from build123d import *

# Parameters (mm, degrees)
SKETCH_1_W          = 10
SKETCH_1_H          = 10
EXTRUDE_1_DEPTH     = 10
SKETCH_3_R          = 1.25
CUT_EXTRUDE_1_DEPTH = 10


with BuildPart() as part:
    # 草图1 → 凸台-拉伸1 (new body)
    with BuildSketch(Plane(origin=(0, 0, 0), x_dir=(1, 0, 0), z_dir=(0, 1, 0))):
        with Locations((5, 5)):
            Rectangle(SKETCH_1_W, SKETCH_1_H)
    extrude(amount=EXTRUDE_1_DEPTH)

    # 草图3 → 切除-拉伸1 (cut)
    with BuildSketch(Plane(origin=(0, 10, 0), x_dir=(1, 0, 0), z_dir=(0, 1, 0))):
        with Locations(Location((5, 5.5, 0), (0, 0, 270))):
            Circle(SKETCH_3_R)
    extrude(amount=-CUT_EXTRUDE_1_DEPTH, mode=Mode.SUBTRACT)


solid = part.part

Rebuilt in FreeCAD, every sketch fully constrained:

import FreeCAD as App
import Part
import Sketcher

V = App.Vector
Q = App.Units.Quantity

doc = App.newDocument("Part")
params = doc.addObject("Spreadsheet::Sheet", "Params")
for row, (alias, value) in enumerate([
    ("sketch1_width", "10 mm"),
    ("pad1_length", "10 mm"),
    ("sketch2_diameter", "2.5 mm"),
    ("pocket1_length", "10 mm"),
], start=1):
    params.set(f"A{row}", alias)
    params.set(f"B{row}", "=" + value)
    params.setAlias(f"B{row}", alias)

body = doc.addObject("PartDesign::Body", "Body")

# Sketch on XZ plane
sketch1 = body.newObject("Sketcher::SketchObject", "Sketch")
sketch1.AttachmentSupport = (doc.getObject("XZ_Plane"), [""])
sketch1.MapMode = "FlatFace"
sketch1.addGeometry([
    Part.LineSegment(V(0, -10, 0), V(0, 0, 0)),
    Part.LineSegment(V(0, 0, 0), V(10, 0, 0)),
    Part.LineSegment(V(10, 0, 0), V(10, -10, 0)),
    Part.LineSegment(V(10, -10, 0), V(0, -10, 0)),
], False)
sketch1.addConstraint([
    Sketcher.Constraint("Coincident", 0, 2, 1, 1),
    Sketcher.Constraint("Coincident", 1, 2, 2, 1),
    Sketcher.Constraint("Coincident", 2, 2, 3, 1),
    Sketcher.Constraint("Coincident", 3, 2, 0, 1),
    Sketcher.Constraint("Vertical", 0),
    Sketcher.Constraint("Horizontal", 1),
    Sketcher.Constraint("Vertical", 2),
    Sketcher.Constraint("Horizontal", 3),
    Sketcher.Constraint("Coincident", 0, 2, -1, 1),
    Sketcher.Constraint("Equal", 3, 0),
    Sketcher.Constraint("DistanceX", 1, 1, 1, 2, Q("10 mm")),
])
sketch1.setExpression("Constraints[10]", "Params.sketch1_width")
pad1 = body.newObject("PartDesign::Pad", "Pad")
pad1.Profile = sketch1
pad1.setExpression("Length", "Params.pad1_length")
pad1.Reversed = True

# Sketch on XZ plane
sketch2 = body.newObject("Sketcher::SketchObject", "Sketch001")
sketch2.AttachmentSupport = (doc.getObject("XZ_Plane"), [""])
sketch2.MapMode = "FlatFace"
sketch2.AttachmentOffset = App.Placement(V(0, 0, -10), App.Rotation())
sketch2.addGeometry(Part.Circle(V(5, -5.5, 0), V(0, 0, 1), 1.2), False)
sketch2.addConstraint([
    Sketcher.Constraint("Diameter", 0, Q("2.5 mm")),
    Sketcher.Constraint("DistanceX", -1, 1, 0, 3, Q("5 mm")),
    Sketcher.Constraint("DistanceY", 0, 3, -1, 1, Q("5.5 mm")),
])
sketch2.setExpression("Constraints[0]", "Params.sketch2_diameter")
pocket1 = body.newObject("PartDesign::Pocket", "Pocket")
pocket1.Profile = sketch2
pocket1.setExpression("Length", "Params.pocket1_length")
pocket1.Reversed = True

doc.recompute()
